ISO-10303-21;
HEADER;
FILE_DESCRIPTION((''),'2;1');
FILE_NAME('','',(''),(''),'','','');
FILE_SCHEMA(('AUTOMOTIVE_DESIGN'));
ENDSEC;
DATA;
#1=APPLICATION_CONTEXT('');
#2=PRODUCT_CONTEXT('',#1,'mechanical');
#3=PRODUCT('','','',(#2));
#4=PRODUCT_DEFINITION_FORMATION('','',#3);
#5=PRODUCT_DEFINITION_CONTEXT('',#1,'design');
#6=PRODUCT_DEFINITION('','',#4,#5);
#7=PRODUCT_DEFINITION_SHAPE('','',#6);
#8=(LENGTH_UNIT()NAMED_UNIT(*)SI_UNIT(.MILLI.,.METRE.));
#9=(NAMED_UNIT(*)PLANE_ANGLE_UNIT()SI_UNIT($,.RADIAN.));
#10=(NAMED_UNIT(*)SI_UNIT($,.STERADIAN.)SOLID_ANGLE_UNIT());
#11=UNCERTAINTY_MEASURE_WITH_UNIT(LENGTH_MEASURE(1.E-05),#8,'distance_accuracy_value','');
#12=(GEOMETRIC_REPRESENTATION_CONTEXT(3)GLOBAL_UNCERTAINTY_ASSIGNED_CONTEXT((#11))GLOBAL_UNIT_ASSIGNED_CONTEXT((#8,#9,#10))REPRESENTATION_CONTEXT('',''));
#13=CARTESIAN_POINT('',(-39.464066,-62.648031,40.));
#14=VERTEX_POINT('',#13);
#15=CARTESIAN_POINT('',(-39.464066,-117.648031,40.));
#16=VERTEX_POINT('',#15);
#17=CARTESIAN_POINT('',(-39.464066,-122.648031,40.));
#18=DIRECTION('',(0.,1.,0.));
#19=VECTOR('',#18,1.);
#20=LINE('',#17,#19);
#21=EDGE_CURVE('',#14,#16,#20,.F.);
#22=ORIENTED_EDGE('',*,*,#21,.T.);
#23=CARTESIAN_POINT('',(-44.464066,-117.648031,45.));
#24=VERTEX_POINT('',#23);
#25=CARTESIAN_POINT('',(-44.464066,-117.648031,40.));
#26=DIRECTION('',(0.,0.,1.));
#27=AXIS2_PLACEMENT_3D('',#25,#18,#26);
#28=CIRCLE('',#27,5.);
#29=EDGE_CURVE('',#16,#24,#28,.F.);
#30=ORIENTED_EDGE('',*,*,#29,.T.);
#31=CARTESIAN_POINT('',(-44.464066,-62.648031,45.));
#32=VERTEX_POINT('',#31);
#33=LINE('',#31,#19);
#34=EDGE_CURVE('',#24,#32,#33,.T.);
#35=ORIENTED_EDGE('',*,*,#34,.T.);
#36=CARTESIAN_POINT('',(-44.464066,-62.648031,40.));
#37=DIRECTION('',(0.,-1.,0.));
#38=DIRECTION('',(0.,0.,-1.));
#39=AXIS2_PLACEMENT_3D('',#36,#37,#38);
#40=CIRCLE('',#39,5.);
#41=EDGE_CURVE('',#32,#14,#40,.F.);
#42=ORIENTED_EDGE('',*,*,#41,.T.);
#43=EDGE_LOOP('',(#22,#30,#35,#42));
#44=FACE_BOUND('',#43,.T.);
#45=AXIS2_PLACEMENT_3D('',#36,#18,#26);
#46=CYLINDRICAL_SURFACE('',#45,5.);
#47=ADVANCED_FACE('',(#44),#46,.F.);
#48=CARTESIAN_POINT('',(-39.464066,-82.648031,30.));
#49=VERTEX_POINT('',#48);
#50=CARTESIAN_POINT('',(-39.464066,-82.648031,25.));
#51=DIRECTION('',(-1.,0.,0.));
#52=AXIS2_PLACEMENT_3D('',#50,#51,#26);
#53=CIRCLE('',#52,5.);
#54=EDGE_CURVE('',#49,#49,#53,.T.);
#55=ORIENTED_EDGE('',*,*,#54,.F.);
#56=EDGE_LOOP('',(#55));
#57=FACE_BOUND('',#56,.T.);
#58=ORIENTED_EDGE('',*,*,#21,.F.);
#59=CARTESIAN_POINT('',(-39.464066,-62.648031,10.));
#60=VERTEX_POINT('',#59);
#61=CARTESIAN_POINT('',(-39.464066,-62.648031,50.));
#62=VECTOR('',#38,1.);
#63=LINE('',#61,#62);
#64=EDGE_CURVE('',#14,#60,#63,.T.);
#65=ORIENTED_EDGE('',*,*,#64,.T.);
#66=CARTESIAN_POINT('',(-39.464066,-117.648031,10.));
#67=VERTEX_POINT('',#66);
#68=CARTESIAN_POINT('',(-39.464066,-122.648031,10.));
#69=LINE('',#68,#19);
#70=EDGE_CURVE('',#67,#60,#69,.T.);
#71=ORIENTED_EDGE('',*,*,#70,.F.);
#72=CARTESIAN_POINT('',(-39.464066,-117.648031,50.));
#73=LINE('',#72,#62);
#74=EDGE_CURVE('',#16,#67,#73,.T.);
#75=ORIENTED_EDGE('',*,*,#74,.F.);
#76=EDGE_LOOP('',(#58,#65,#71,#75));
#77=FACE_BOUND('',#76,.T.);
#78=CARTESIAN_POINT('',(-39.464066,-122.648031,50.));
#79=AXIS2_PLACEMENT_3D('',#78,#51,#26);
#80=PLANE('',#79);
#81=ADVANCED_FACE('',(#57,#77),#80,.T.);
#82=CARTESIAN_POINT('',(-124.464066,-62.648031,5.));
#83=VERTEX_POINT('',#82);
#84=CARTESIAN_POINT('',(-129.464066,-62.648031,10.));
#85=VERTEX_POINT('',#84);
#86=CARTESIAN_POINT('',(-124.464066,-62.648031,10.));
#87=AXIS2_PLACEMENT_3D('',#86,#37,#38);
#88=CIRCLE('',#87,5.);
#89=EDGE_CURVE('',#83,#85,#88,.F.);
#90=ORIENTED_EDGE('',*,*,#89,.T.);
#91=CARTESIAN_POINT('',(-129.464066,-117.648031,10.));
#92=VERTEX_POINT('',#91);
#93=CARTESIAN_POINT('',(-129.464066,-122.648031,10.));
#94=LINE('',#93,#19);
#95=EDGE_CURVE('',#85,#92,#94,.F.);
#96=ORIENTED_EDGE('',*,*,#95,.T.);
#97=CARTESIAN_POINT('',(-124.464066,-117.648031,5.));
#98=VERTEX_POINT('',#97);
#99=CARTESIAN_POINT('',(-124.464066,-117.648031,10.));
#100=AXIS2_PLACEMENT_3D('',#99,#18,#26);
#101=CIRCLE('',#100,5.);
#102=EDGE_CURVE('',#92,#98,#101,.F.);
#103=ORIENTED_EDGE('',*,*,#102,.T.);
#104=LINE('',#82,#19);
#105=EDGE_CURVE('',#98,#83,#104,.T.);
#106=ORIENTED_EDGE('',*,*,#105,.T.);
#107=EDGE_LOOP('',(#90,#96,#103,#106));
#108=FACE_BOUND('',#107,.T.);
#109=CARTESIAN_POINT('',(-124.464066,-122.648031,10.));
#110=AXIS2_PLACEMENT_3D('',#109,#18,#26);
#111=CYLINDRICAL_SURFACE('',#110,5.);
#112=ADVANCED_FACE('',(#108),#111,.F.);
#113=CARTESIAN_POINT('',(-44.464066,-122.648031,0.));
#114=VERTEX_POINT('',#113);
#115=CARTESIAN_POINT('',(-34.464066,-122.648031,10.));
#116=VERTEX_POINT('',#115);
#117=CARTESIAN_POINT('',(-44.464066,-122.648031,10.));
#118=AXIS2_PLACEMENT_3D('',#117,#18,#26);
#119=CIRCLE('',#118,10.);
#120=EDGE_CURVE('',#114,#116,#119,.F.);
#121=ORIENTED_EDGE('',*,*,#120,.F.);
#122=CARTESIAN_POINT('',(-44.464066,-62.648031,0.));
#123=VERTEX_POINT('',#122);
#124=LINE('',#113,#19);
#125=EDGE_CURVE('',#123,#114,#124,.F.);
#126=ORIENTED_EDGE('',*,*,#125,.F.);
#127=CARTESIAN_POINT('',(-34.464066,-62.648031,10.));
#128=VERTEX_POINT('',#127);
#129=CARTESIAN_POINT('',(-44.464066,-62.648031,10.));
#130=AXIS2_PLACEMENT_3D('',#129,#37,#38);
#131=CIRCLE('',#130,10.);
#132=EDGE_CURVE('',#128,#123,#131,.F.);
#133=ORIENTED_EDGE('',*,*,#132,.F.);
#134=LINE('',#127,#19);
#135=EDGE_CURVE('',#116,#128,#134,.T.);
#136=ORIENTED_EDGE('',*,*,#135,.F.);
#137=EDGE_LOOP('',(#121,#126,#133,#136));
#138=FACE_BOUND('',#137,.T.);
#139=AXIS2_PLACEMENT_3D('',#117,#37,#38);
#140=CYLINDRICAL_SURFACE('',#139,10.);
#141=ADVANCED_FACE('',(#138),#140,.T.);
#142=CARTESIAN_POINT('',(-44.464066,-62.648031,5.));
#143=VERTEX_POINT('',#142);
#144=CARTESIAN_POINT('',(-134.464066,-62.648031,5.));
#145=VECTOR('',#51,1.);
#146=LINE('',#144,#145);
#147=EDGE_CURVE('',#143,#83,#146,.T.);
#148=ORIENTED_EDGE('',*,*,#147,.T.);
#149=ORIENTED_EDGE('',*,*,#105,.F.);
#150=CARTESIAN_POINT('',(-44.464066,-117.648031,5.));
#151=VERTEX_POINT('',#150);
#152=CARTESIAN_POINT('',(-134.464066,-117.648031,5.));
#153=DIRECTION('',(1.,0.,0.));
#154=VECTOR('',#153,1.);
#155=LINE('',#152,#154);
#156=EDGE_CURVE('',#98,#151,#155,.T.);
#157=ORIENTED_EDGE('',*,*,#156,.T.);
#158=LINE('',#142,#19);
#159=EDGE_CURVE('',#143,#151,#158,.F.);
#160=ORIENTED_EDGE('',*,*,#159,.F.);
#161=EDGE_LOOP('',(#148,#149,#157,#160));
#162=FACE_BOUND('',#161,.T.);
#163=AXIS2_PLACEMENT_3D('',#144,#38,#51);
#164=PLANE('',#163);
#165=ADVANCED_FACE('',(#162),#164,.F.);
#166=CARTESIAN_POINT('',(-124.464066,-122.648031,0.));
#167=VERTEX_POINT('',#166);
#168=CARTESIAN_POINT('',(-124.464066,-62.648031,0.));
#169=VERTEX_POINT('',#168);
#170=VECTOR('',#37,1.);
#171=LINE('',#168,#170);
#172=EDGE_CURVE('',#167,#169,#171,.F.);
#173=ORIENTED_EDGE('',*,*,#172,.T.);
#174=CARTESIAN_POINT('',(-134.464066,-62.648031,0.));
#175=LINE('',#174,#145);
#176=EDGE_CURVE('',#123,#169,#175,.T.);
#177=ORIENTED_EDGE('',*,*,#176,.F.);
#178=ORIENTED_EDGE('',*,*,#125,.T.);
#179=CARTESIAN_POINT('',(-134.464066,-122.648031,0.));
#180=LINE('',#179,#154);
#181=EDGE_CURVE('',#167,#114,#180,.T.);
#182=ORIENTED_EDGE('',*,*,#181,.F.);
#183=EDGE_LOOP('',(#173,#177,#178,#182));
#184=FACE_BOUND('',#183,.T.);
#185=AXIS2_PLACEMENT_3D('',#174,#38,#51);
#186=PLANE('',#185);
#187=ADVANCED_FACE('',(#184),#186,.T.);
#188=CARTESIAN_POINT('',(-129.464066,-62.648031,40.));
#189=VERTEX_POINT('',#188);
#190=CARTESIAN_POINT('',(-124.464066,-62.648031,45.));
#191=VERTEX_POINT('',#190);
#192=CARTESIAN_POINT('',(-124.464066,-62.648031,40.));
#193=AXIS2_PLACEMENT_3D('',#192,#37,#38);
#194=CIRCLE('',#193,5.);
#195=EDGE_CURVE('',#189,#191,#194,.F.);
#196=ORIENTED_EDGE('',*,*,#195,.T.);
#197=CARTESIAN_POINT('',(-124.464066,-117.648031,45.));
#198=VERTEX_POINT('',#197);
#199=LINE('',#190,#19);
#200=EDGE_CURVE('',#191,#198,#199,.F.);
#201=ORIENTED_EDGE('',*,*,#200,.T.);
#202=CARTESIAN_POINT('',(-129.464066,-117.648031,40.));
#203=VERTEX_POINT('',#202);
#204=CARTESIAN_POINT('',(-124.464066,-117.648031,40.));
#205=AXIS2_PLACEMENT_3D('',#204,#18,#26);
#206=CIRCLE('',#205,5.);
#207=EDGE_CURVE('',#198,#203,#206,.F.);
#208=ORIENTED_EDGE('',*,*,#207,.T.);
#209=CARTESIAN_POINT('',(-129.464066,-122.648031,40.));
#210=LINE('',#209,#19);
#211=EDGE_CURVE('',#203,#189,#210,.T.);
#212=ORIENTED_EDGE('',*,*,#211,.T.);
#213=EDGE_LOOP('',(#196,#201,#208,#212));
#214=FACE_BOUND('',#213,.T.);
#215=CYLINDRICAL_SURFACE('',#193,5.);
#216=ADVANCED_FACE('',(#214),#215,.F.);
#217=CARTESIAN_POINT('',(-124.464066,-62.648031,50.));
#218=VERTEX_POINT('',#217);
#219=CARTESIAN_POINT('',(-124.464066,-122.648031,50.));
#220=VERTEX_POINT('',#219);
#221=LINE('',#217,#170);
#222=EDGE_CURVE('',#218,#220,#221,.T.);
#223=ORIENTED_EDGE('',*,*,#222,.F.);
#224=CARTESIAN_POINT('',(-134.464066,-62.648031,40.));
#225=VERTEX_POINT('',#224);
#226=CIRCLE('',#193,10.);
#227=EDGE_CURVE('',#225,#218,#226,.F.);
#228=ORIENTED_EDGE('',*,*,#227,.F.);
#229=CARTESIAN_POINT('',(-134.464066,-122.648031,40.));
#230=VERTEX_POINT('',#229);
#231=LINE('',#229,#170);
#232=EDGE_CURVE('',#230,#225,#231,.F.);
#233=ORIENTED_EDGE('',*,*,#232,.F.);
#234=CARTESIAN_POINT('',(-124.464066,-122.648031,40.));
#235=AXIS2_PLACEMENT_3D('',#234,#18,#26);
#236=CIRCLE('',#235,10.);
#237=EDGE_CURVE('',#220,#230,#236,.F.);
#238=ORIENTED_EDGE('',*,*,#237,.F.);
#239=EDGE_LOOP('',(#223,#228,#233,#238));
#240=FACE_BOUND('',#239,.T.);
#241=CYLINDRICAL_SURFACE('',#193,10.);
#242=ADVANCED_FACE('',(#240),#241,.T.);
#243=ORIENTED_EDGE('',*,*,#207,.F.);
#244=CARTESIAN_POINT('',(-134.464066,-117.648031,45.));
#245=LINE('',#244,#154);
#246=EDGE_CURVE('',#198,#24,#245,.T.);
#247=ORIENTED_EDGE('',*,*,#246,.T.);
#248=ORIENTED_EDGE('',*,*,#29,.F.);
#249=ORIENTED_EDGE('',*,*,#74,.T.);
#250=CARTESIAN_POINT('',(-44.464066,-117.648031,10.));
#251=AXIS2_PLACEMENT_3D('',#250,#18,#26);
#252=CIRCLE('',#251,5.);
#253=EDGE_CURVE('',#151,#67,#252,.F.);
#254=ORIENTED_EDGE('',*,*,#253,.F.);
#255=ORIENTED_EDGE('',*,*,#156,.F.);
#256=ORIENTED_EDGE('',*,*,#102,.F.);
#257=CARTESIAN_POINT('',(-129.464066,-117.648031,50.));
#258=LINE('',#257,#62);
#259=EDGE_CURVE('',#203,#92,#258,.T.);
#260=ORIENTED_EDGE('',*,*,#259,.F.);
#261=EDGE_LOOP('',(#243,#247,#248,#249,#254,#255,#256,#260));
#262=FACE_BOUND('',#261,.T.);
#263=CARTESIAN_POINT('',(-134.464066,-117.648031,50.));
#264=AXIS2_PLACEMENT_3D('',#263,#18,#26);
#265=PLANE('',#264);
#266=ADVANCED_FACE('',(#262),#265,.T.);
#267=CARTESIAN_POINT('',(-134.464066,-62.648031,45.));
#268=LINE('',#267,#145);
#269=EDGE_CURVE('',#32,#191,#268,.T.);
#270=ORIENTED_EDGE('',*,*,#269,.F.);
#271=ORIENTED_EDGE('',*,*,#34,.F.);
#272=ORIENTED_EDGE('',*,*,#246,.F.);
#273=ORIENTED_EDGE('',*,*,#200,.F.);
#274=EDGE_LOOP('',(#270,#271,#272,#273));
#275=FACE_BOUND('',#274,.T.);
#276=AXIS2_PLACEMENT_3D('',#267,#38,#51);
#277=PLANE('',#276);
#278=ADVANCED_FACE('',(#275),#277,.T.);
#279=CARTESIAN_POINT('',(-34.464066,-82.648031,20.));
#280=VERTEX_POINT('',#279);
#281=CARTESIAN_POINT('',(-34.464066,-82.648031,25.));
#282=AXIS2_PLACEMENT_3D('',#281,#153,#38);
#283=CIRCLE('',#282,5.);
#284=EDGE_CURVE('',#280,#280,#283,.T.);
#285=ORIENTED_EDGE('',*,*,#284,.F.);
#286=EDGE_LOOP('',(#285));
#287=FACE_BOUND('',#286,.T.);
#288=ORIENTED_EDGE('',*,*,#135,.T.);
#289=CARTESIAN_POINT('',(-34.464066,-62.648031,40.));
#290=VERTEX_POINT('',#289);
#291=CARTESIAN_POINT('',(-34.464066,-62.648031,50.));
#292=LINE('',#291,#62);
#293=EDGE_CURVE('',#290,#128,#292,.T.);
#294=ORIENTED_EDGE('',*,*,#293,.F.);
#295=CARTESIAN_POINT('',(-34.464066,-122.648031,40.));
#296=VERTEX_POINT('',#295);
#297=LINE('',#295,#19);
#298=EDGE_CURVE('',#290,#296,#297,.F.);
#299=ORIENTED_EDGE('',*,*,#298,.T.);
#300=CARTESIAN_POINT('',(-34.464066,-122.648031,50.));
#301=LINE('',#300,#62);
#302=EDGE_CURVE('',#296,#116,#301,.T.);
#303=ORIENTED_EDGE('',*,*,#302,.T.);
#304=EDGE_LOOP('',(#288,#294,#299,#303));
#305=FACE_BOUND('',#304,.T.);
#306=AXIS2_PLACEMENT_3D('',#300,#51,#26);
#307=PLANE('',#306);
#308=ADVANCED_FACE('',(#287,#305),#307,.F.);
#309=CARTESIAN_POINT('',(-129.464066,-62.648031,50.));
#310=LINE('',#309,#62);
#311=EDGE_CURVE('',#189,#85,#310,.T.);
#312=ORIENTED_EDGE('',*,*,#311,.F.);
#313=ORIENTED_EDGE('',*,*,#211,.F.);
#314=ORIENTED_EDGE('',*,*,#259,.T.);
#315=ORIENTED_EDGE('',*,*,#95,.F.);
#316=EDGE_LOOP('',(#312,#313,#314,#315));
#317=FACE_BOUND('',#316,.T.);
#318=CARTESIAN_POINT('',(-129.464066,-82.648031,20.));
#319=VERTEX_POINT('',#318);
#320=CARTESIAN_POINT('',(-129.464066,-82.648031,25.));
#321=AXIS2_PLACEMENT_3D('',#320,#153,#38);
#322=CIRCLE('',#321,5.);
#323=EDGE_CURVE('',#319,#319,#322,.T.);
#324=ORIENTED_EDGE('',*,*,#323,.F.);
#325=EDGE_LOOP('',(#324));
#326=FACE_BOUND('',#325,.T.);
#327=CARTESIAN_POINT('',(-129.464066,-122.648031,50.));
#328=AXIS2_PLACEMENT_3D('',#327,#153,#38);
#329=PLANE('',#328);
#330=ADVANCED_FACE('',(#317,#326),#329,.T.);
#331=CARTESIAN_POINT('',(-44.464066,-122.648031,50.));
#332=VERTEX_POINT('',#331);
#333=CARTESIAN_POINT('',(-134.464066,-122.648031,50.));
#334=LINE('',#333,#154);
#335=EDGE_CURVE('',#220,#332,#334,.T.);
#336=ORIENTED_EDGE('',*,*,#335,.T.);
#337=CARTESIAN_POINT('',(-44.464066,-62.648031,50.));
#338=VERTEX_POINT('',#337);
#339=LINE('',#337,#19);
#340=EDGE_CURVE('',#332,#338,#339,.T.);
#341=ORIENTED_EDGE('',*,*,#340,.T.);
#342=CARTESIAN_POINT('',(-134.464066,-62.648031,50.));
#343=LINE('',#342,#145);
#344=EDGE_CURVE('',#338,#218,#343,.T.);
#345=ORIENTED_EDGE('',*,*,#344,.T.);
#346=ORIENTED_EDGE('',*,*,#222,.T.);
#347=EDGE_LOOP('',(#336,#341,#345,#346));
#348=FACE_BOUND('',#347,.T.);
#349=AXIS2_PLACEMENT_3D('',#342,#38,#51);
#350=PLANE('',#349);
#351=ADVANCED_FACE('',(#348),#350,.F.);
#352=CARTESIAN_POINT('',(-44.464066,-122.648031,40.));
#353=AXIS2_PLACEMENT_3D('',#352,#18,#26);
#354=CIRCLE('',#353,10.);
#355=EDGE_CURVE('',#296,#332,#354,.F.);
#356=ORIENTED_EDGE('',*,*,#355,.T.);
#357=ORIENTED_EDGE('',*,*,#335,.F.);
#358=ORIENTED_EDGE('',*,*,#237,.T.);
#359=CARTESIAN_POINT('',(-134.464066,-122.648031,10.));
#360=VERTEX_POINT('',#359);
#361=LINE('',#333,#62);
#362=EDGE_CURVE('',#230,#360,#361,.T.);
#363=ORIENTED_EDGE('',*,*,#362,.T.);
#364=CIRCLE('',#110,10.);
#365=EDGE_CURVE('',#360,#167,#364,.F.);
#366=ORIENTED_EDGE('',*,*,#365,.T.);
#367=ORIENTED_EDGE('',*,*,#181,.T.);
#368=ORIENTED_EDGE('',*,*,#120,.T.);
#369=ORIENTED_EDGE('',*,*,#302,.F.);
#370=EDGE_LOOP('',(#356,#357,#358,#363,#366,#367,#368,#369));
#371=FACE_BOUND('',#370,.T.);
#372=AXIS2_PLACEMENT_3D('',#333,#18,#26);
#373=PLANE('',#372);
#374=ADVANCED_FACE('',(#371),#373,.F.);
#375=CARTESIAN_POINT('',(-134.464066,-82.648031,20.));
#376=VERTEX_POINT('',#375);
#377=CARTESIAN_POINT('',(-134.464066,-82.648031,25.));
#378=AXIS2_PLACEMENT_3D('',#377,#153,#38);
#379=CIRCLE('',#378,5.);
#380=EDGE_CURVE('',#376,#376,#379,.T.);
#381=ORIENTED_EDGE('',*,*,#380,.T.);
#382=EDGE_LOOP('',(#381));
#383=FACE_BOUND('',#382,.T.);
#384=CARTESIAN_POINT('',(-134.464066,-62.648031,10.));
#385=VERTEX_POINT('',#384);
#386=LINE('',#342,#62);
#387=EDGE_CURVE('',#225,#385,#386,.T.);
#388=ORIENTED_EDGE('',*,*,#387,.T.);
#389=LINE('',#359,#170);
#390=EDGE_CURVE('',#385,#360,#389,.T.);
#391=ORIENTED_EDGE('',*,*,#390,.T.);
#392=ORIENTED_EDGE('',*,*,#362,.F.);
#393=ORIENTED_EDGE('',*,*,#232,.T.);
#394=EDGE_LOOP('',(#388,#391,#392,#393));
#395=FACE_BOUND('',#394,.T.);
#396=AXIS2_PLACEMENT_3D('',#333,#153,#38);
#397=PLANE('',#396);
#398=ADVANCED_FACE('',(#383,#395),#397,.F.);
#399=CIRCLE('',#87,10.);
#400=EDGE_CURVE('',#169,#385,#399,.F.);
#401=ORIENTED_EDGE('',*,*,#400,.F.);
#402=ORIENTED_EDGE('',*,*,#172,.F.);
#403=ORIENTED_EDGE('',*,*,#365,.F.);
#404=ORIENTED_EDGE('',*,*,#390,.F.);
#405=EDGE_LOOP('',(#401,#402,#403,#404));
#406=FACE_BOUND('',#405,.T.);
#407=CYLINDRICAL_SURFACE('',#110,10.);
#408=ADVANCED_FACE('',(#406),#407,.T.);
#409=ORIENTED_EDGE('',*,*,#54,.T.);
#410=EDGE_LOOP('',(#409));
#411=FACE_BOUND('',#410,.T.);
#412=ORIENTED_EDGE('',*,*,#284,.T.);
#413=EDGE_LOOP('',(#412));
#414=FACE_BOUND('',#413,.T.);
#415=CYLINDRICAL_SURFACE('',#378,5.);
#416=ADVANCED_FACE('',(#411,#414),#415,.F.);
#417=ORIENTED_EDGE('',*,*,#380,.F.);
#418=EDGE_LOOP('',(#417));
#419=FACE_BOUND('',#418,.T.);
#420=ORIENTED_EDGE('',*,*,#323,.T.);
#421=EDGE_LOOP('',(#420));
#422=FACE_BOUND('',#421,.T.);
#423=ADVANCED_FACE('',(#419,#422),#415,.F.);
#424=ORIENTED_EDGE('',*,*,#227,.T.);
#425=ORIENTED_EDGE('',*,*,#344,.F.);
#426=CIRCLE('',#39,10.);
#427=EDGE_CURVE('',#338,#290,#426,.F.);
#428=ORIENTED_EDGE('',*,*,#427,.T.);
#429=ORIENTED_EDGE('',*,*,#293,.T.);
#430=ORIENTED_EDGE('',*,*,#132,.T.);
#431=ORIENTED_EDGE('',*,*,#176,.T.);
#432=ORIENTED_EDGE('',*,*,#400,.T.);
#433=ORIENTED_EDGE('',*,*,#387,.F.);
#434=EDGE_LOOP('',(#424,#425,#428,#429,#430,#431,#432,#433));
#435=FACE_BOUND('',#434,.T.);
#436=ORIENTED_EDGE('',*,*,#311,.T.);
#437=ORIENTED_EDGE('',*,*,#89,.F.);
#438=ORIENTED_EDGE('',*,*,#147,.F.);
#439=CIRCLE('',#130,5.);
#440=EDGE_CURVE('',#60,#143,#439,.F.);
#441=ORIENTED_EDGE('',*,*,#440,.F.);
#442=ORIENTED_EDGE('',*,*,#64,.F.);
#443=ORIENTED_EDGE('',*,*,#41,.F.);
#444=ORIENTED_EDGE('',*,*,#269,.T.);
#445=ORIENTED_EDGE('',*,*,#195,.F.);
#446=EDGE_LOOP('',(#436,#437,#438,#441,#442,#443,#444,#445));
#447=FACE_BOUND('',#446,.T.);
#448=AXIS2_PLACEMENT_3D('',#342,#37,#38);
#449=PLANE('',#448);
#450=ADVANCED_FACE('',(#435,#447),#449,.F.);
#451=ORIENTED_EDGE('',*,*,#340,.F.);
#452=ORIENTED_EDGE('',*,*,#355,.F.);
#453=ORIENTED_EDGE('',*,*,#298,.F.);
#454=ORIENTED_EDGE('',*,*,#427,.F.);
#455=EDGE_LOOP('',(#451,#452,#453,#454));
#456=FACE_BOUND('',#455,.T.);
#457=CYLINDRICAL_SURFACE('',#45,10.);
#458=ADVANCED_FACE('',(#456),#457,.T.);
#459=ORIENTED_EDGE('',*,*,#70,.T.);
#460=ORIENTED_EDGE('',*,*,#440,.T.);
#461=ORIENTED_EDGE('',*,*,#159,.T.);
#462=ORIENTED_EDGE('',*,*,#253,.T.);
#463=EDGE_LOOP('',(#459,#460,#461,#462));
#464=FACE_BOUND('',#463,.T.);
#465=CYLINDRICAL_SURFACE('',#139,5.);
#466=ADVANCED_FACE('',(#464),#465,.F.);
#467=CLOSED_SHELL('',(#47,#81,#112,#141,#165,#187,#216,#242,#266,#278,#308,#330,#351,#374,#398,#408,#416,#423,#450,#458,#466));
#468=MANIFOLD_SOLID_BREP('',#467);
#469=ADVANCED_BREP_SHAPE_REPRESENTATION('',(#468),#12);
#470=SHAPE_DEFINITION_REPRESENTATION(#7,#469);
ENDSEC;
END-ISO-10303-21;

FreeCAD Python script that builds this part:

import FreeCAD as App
import Part
import Sketcher

V = App.Vector
Q = App.Units.Quantity


def edges_at(feature, points):
    """Names of the edges that pass closest to the given points."""
    edges = feature.Shape.Edges
    near = lambda p: min(range(len(edges)), key=lambda i: edges[i].distToShape(Part.Vertex(*p))[0])
    return sorted({f"Edge{near(p) + 1}" for p in points})


def faces_at(feature, points):
    """Names of the faces that lie closest to the given points."""
    faces = feature.Shape.Faces
    near = lambda p: min(range(len(faces)), key=lambda i: faces[i].distToShape(Part.Vertex(*p))[0])
    return sorted({f"Face{near(p) + 1}" for p in points})

doc = App.newDocument("Part")
params = doc.addObject("Spreadsheet::Sheet", "Params")
for row, (alias, value) in enumerate([
    ("sketch1_width", "100 mm"),
    ("sketch1_height", "60 mm"),
    ("pad1_length", "50 mm"),
    ("fillet_radius", "10 mm"),
    ("thickness_wall", "5 mm"),
    ("sketch2_diameter", "10 mm"),
], start=1):
    params.set(f"A{row}", alias)
    params.set(f"B{row}", "=" + value)
    params.setAlias(f"B{row}", alias)

body = doc.addObject("PartDesign::Body", "Body")

# Sketch on XY plane
sketch1 = body.newObject("Sketcher::SketchObject", "Sketch")
sketch1.AttachmentSupport = (doc.getObject("XY_Plane"), [""])
sketch1.MapMode = "FlatFace"
sketch1.addGeometry([
    Part.LineSegment(V(-134.464066, -62.648031, 0), V(-134.464066, -122.648031, 0)),
    Part.LineSegment(V(-134.464066, -122.648031, 0), V(-34.464066, -122.648031, 0)),
    Part.LineSegment(V(-34.464066, -122.648031, 0), V(-34.464066, -62.648031, 0)),
    Part.LineSegment(V(-34.464066, -62.648031, 0), V(-134.464066, -62.648031, 0)),
], False)
sketch1.addConstraint([
    Sketcher.Constraint("Coincident", 0, 2, 1, 1),
    Sketcher.Constraint("Coincident", 1, 2, 2, 1),
    Sketcher.Constraint("Coincident", 2, 2, 3, 1),
    Sketcher.Constraint("Coincident", 3, 2, 0, 1),
    Sketcher.Constraint("Vertical", 0),
    Sketcher.Constraint("Horizontal", 1),
    Sketcher.Constraint("Vertical", 2),
    Sketcher.Constraint("Horizontal", 3),
    Sketcher.Constraint("DistanceX", 1, 1, 1, 2, Q("100 mm")),
    Sketcher.Constraint("DistanceY", 0, 2, 0, 1, Q("60 mm")),
    Sketcher.Constraint("DistanceY", 0, 2, -1, 1, Q("122.648031 mm")),
    Sketcher.Constraint("DistanceX", 0, 2, -1, 1, Q("134.464066 mm")),
])
sketch1.setExpression("Constraints[8]", "Params.sketch1_width")
sketch1.setExpression("Constraints[9]", "Params.sketch1_height")
pad1 = body.newObject("PartDesign::Pad", "Pad")
pad1.Profile = sketch1
pad1.setExpression("Length", "Params.pad1_length")
doc.recompute()

fillet = body.newObject("PartDesign::Fillet", "Fillet")
fillet.Base = (pad1, edges_at(pad1, [
    (-34.464, -92.648, 50),
    (-134.464, -92.648, 50),
    (-34.464, -92.648, 0),
    (-134.464, -92.648, 0),
]))
fillet.setExpression("Radius", "Params.fillet_radius")
doc.recompute()

thickness = body.newObject("PartDesign::Thickness", "Thickness")
thickness.Base = (fillet, faces_at(fillet, [(-84.464, -62.648, 25)]))
thickness.setExpression("Value", "Params.thickness_wall")
thickness.Reversed = True
thickness.Join = "Intersection"

# Sketch on YZ plane
sketch2 = body.newObject("Sketcher::SketchObject", "Sketch001")
sketch2.AttachmentSupport = (doc.getObject("YZ_Plane"), [""])
sketch2.MapMode = "FlatFace"
sketch2.AttachmentOffset = App.Placement(V(0, 0, -34.464066), App.Rotation())
sketch2.addGeometry(Part.Circle(V(-82.648031, 25, 0), V(0, 0, 1), 5), False)
sketch2.addConstraint([
    Sketcher.Constraint("Diameter", 0, Q("10 mm")),
    Sketcher.Constraint("DistanceY", -1, 1, 0, 3, Q("25 mm")),
    Sketcher.Constraint("DistanceX", 0, 3, -1, 1, Q("82.648031 mm")),
])
sketch2.setExpression("Constraints[0]", "Params.sketch2_diameter")
pocket1 = body.newObject("PartDesign::Pocket", "Pocket")
pocket1.Profile = sketch2
pocket1.Type = "ThroughAll"

doc.recompute()
